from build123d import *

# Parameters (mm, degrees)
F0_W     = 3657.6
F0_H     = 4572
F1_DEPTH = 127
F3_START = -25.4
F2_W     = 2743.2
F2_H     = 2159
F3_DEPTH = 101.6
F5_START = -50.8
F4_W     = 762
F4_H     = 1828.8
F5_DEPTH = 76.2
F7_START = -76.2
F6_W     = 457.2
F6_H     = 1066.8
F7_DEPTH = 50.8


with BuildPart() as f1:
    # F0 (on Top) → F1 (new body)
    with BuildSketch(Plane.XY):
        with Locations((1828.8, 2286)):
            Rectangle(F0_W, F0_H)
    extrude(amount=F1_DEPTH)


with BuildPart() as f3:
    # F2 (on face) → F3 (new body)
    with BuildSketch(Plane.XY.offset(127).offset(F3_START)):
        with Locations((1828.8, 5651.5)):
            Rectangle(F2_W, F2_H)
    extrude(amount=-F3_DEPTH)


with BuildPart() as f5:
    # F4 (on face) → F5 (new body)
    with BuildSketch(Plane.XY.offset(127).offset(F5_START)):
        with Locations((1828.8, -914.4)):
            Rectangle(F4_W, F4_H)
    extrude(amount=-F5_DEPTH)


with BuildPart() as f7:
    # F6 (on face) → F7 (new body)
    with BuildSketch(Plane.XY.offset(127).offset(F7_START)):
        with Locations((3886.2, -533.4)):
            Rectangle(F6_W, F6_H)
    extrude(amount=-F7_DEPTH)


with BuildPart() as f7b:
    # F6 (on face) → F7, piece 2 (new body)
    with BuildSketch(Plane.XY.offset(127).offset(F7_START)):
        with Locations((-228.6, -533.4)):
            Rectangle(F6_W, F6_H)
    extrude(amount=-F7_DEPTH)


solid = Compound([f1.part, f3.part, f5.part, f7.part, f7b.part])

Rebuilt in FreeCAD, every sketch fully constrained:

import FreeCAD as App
import Part
import Sketcher
Q = App.Units.Quantity

doc = App.newDocument("Part")
body = doc.addObject("PartDesign::Body", "Body")

sketch1 = body.newObject("Sketcher::SketchObject", "Sketch")
sketch1.AttachmentSupport = (doc.getObject("XY_Plane"), [""])
sketch1.MapMode = "FlatFace"
sketch1.addGeometry([
    Part.LineSegment(App.Vector(0, 4572, 0), App.Vector(0, 0, 0)),
    Part.LineSegment(App.Vector(0, 0, 0), App.Vector(3658, 0, 0)),
    Part.LineSegment(App.Vector(3658, 0, 0), App.Vector(3658, 4572, 0)),
    Part.LineSegment(App.Vector(3658, 4572, 0), App.Vector(0, 4572, 0)),
], False)
sketch1.addConstraint([
    Sketcher.Constraint("Coincident", 0, 2, 1, 1),
    Sketcher.Constraint("Coincident", 1, 2, 2, 1),
    Sketcher.Constraint("Coincident", 2, 2, 3, 1),
    Sketcher.Constraint("Coincident", 3, 2, 0, 1),
    Sketcher.Constraint("Vertical", 0),
    Sketcher.Constraint("Horizontal", 1),
    Sketcher.Constraint("Vertical", 2),
    Sketcher.Constraint("Horizontal", 3),
    Sketcher.Constraint("Coincident", 0, 2, -1, 1),
    Sketcher.Constraint("DistanceX", 1, 1, 1, 2, Q("144 in")),
    Sketcher.Constraint("DistanceY", 0, 2, 0, 1, Q("180 in")),
])
pad1 = body.newObject("PartDesign::Pad", "Pad")
pad1.Profile = sketch1
pad1.Length = Q("5 in")
body2 = doc.addObject("PartDesign::Body", "Body001")

sketch2 = body2.newObject("Sketcher::SketchObject", "Sketch001")
sketch2.AttachmentSupport = (doc.getObject("XY_Plane001"), [""])
sketch2.MapMode = "FlatFace"
sketch2.AttachmentOffset = App.Placement(App.Vector(0, 0, 4 * 25.4), App.Rotation())
sketch2.addGeometry([
    Part.LineSegment(App.Vector(457, 6731, 0), App.Vector(457, 4572, 0)),
    Part.LineSegment(App.Vector(457, 4572, 0), App.Vector(3200, 4572, 0)),
    Part.LineSegment(App.Vector(3200, 4572, 0), App.Vector(3200, 6731, 0)),
    Part.LineSegment(App.Vector(3200, 6731, 0), App.Vector(457, 6731, 0)),
], False)
sketch2.addConstraint([
    Sketcher.Constraint("Coincident", 0, 2, 1, 1),
    Sketcher.Constraint("Coincident", 1, 2, 2, 1),
    Sketcher.Constraint("Coincident", 2, 2, 3, 1),
    Sketcher.Constraint("Coincident", 3, 2, 0, 1),
    Sketcher.Constraint("Vertical", 0),
    Sketcher.Constraint("Horizontal", 1),
    Sketcher.Constraint("Vertical", 2),
    Sketcher.Constraint("Horizontal", 3),
    Sketcher.Constraint("DistanceX", 1, 1, 1, 2, Q("108 in")),
    Sketcher.Constraint("DistanceY", 0, 2, 0, 1, Q("85 in")),
    Sketcher.Constraint("DistanceX", -1, 1, 0, 2, Q("18 in")),
    Sketcher.Constraint("DistanceY", -1, 1, 0, 2, Q("180 in")),
])
pad2 = body2.newObject("PartDesign::Pad", "Pad001")
pad2.Profile = sketch2
pad2.Length = Q("4 in")
pad2.Reversed = True
body3 = doc.addObject("PartDesign::Body", "Body002")

sketch3 = body3.newObject("Sketcher::SketchObject", "Sketch002")
sketch3.AttachmentSupport = (doc.getObject("XY_Plane002"), [""])
sketch3.MapMode = "FlatFace"
sketch3.AttachmentOffset = App.Placement(App.Vector(0, 0, 3 * 25.4), App.Rotation())
sketch3.addGeometry([
    Part.LineSegment(App.Vector(1448, 0, 0), App.Vector(1448, -1829, 0)),
    Part.LineSegment(App.Vector(1448, -1829, 0), App.Vector(2210, -1829, 0)),
    Part.LineSegment(App.Vector(2210, -1829, 0), App.Vector(2210, 0, 0)),
    Part.LineSegment(App.Vector(2210, 0, 0), App.Vector(1448, 0, 0)),
], False)
sketch3.addConstraint([
    Sketcher.Constraint("Coincident", 0, 2, 1, 1),
    Sketcher.Constraint("Coincident", 1, 2, 2, 1),
    Sketcher.Constraint("Coincident", 2, 2, 3, 1),
    Sketcher.Constraint("Coincident", 3, 2, 0, 1),
    Sketcher.Constraint("Vertical", 0),
    Sketcher.Constraint("Horizontal", 1),
    Sketcher.Constraint("Vertical", 2),
    Sketcher.Constraint("Horizontal", 3),
    Sketcher.Constraint("PointOnObject", 2, 2, -1),
    Sketcher.Constraint("DistanceX", 1, 1, 1, 2, Q("30 in")),
    Sketcher.Constraint("DistanceY", 0, 2, 0, 1, Q("72 in")),
    Sketcher.Constraint("DistanceX", -1, 1, 0, 2, Q("57 in")),
])
pad3 = body3.newObject("PartDesign::Pad", "Pad002")
pad3.Profile = sketch3
pad3.Length = Q("3 in")
pad3.Reversed = True
body4 = doc.addObject("PartDesign::Body", "Body003")

sketch4 = body4.newObject("Sketcher::SketchObject", "Sketch003")
sketch4.AttachmentSupport = (doc.getObject("XY_Plane003"), [""])
sketch4.MapMode = "FlatFace"
sketch4.AttachmentOffset = App.Placement(App.Vector(0, 0, 2 * 25.4), App.Rotation())
sketch4.addGeometry([
    Part.LineSegment(App.Vector(3658, 0, 0), App.Vector(3658, -1067, 0)),
    Part.LineSegment(App.Vector(3658, -1067, 0), App.Vector(4115, -1067, 0)),
    Part.LineSegment(App.Vector(4115, -1067, 0), App.Vector(4115, 0, 0)),
    Part.LineSegment(App.Vector(4115, 0, 0), App.Vector(3658, 0, 0)),
], False)
sketch4.addConstraint([
    Sketcher.Constraint("Coincident", 0, 2, 1, 1),
    Sketcher.Constraint("Coincident", 1, 2, 2, 1),
    Sketcher.Constraint("Coincident", 2, 2, 3, 1),
    Sketcher.Constraint("Coincident", 3, 2, 0, 1),
    Sketcher.Constraint("Vertical", 0),
    Sketcher.Constraint("Horizontal", 1),
    Sketcher.Constraint("Vertical", 2),
    Sketcher.Constraint("Horizontal", 3),
    Sketcher.Constraint("PointOnObject", 2, 2, -1),
    Sketcher.Constraint("DistanceX", 1, 1, 1, 2, Q("18 in")),
    Sketcher.Constraint("DistanceY", 0, 2, 0, 1, Q("42 in")),
    Sketcher.Constraint("DistanceX", -1, 1, 0, 2, Q("144 in")),
])
pad4 = body4.newObject("PartDesign::Pad", "Pad003")
pad4.Profile = sketch4
pad4.Length = Q("2 in")
pad4.Reversed = True
body5 = doc.addObject("PartDesign::Body", "Body004")

sketch5 = body5.newObject("Sketcher::SketchObject", "Sketch004")
sketch5.AttachmentSupport = (doc.getObject("XY_Plane004"), [""])
sketch5.MapMode = "FlatFace"
sketch5.AttachmentOffset = App.Placement(App.Vector(0, 0, 2 * 25.4), App.Rotation())
sketch5.addGeometry([
    Part.LineSegment(App.Vector(-457, 0, 0), App.Vector(-457, -1067, 0)),
    Part.LineSegment(App.Vector(-457, -1067, 0), App.Vector(0, -1067, 0)),
    Part.LineSegment(App.Vector(0, -1067, 0), App.Vector(0, 0, 0)),
    Part.LineSegment(App.Vector(0, 0, 0), App.Vector(-457, 0, 0)),
], False)
sketch5.addConstraint([
    Sketcher.Constraint("Coincident", 0, 2, 1, 1),
    Sketcher.Constraint("Coincident", 1, 2, 2, 1),
    Sketcher.Constraint("Coincident", 2, 2, 3, 1),
    Sketcher.Constraint("Coincident", 3, 2, 0, 1),
    Sketcher.Constraint("Vertical", 0),
    Sketcher.Constraint("Horizontal", 1),
    Sketcher.Constraint("Vertical", 2),
    Sketcher.Constraint("Horizontal", 3),
    Sketcher.Constraint("Coincident", 2, 2, -1, 1),
    Sketcher.Constraint("DistanceX", 1, 1, 1, 2, Q("18 in")),
    Sketcher.Constraint("DistanceY", 0, 2, 0, 1, Q("42 in")),
])
pad5 = body5.newObject("PartDesign::Pad", "Pad004")
pad5.Profile = sketch5
pad5.Length = Q("2 in")
pad5.Reversed = True

doc.recompute()
